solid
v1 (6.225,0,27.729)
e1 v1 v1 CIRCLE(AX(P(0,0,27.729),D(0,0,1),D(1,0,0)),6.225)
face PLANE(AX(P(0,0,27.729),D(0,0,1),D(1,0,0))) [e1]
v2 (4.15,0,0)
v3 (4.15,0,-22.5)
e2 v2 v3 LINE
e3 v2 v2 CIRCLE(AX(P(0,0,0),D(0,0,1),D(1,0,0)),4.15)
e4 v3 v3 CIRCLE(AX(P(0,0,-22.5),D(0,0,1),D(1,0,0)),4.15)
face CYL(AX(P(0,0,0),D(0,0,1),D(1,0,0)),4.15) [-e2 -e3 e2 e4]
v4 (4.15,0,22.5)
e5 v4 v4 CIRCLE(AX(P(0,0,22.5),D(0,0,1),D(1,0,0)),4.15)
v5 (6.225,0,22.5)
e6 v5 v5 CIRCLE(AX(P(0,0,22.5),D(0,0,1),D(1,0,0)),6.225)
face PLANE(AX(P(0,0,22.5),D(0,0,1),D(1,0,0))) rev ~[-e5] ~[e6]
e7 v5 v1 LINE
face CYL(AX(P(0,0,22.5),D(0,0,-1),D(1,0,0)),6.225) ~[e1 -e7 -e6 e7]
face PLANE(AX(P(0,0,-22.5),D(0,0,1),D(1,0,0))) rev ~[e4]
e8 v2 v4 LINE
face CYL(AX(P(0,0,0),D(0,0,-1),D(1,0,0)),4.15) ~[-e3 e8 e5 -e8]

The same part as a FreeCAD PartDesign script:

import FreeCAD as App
import Part
import Sketcher
from FreeCAD import Vector

doc = App.newDocument("Part")
body = doc.addObject("PartDesign::Body", "Body")

sketch1 = doc.addObject("Sketcher::SketchObject", "Sketch")
body.addObject(sketch1)
sketch1.AttachmentSupport = (doc.XY_Plane, [""])
sketch1.MapMode = "FlatFace"
sketch1.addGeometry(Part.Circle(Vector(0, 0, 0), Vector(0, 0, 1), 4.2), False)
sketch1.addConstraint([
    Sketcher.Constraint("Coincident", 0, 3, -1, 1),
    Sketcher.Constraint("Diameter", 0, 8.3),
])
pad1 = doc.addObject("PartDesign::Pad", "Pad")
body.addObject(pad1)
pad1.Profile = sketch1
pad1.Length = 45
pad1.Midplane = True

sketch2 = doc.addObject("Sketcher::SketchObject", "Sketch001")
body.addObject(sketch2)
sketch2.AttachmentSupport = (doc.XY_Plane, [""])
sketch2.MapMode = "FlatFace"
sketch2.AttachmentOffset = App.Placement(Vector(0, 0, 22.5), App.Rotation())
sketch2.addGeometry(Part.Circle(Vector(0, 0, 0), Vector(0, 0, 1), 6), False)
sketch2.addConstraint([
    Sketcher.Constraint("Coincident", 0, 3, -1, 1),
    Sketcher.Constraint("Diameter", 0, 12.45),
])
pad2 = doc.addObject("PartDesign::Pad", "Pad001")
body.addObject(pad2)
pad2.Profile = sketch2
pad2.Length = 5.229

doc.recompute()
